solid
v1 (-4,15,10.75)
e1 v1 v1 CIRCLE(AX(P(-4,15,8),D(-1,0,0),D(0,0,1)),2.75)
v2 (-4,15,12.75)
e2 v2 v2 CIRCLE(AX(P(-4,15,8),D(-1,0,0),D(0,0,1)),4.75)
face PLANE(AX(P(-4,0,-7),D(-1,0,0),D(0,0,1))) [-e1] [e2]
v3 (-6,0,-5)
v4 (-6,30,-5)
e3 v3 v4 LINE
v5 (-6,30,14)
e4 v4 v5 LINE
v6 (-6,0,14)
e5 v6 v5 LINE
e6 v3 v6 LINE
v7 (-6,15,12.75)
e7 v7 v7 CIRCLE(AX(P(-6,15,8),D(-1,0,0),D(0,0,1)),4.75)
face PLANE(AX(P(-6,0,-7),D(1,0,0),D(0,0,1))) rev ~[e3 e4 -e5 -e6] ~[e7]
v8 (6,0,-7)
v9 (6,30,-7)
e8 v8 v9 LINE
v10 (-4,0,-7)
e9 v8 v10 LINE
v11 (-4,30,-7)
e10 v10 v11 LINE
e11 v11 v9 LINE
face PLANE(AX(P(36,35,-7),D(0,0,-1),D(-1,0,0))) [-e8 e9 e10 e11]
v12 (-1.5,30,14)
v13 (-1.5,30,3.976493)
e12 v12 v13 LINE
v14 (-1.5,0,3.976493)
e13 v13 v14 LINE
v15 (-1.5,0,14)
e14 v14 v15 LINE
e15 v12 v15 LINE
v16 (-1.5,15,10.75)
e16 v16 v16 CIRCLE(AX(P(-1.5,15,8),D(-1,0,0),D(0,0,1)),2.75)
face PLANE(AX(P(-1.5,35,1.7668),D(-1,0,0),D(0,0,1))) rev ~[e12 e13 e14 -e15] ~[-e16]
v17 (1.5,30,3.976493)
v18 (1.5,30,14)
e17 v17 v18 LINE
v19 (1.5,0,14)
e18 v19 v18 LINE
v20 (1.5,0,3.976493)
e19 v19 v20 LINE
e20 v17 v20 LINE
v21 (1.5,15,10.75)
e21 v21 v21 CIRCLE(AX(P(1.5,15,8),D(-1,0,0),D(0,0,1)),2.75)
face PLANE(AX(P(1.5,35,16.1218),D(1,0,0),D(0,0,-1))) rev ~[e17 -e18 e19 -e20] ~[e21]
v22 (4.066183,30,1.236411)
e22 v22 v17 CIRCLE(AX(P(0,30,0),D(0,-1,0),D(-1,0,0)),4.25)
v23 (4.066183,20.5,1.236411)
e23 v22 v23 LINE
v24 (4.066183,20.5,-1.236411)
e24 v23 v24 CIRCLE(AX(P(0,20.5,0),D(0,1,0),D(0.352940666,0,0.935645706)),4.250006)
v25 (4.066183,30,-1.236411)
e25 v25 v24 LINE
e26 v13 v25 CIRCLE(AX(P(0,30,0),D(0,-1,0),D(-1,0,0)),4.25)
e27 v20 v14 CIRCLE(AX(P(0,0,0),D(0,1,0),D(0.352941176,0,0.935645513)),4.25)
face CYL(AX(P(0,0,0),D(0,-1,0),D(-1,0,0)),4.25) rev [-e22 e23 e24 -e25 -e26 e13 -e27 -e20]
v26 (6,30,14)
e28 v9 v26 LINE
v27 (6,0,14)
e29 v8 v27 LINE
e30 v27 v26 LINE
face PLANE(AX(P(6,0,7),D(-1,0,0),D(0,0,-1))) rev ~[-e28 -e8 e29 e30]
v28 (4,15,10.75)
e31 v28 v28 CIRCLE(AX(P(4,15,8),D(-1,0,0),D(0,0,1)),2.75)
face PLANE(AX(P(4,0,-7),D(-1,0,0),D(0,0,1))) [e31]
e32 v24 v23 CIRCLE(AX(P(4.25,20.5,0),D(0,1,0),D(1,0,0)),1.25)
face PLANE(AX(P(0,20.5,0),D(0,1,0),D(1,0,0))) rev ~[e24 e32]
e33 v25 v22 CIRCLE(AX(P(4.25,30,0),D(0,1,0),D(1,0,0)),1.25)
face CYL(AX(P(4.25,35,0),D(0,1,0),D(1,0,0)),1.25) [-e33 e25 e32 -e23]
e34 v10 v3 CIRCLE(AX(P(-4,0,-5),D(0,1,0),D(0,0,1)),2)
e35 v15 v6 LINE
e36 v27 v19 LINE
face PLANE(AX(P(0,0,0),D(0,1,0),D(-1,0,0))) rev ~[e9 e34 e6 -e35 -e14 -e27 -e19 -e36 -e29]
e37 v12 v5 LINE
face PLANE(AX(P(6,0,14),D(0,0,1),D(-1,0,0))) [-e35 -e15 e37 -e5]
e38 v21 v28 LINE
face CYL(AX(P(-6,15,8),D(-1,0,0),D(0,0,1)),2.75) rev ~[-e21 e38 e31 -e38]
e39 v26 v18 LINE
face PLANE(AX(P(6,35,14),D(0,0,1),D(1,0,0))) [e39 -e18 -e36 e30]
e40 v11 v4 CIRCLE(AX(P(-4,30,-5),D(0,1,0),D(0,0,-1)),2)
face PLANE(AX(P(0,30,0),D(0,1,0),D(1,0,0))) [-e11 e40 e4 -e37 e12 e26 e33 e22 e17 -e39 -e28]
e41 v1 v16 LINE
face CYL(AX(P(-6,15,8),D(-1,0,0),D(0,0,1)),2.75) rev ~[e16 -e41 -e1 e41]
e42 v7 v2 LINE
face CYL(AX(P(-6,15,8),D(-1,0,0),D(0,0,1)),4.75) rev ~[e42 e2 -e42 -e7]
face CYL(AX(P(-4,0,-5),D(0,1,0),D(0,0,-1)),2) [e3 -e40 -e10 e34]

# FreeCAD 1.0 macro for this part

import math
import FreeCAD as App
import Part
import Sketcher
Q = App.Units.Quantity


def edges_at(feature, points):
    """Names of the edges that pass closest to the given points."""
    edges = feature.Shape.Edges
    near = lambda p: min(range(len(edges)), key=lambda i: edges[i].distToShape(Part.Vertex(*p))[0])
    return sorted({f"Edge{near(p) + 1}" for p in points})

doc = App.newDocument("Part")
params = doc.addObject("Spreadsheet::Sheet", "Params")
for row, (alias, value) in enumerate([
    ("sketch1_diameter", "8.5 mm"),
    ("sketch1_width", "12 mm"),
    ("pad1_length", "35 mm"),
    ("sketch3_diameter", "5.5 mm"),
    ("pocket2_length", "10 mm"),
    ("sketch4_radius", "1.25 mm"),
    ("sketch4_radius2", "4.25 mm"),
    ("pad2_length", "14.5 mm"),
    ("sketch5_diameter", "5.5 mm"),
    ("sketch5_width", "30 mm"),
    ("pad3_length", "5 mm"),
    ("sketch6_diameter", "9.5 mm"),
    ("sketch6_diameter2", "5.5 mm"),
    ("pocket3_length", "2 mm"),
    ("sketch7_diameter", "9.5 mm"),
    ("sketch7_diameter2", "5.5 mm"),
    ("pocket4_length", "2 mm"),
    ("fillet_radius", "2 mm"),
    ("pocket5_length", "5 mm"),
], start=1):
    params.set(f"A{row}", alias)
    params.set(f"B{row}", "=" + value)
    params.setAlias(f"B{row}", alias)

body = doc.addObject("PartDesign::Body", "Body")

# Sketch on XZ plane
sketch1 = body.newObject("Sketcher::SketchObject", "Sketch")
sketch1.AttachmentSupport = (doc.getObject("XZ_Plane"), [""])
sketch1.MapMode = "FlatFace"
sketch1.addGeometry([
    Part.LineSegment(App.Vector(-6, -7, 0), App.Vector(-6, 14, 0)),  # 0
    Part.LineSegment(App.Vector(-6, 14, 0), App.Vector(6, 14, 0)),  # 1
    Part.LineSegment(App.Vector(6, 14, 0), App.Vector(6, -7, 0)),  # 2
    Part.LineSegment(App.Vector(6, -7, 0), App.Vector(-6, -7, 0)),  # 3
    Part.Circle(App.Vector(0, 0, 0), App.Vector(0, 0, 1), 4.25),  # 4
], False)
sketch1.addConstraint([
    Sketcher.Constraint("Coincident", 0, 2, 1, 1),
    Sketcher.Constraint("Coincident", 1, 2, 2, 1),
    Sketcher.Constraint("Coincident", 2, 2, 3, 1),
    Sketcher.Constraint("Coincident", 3, 2, 0, 1),
    Sketcher.Constraint("Vertical", 0),
    Sketcher.Constraint("Horizontal", 1),
    Sketcher.Constraint("Vertical", 2),
    Sketcher.Constraint("Horizontal", 3),
    Sketcher.Constraint("Coincident", 4, 3, -1, 1),
    Sketcher.Constraint("Diameter", 4, Q("8.5 mm")),
    Sketcher.Constraint("DistanceX", 1, 1, 1, 2, Q("12 mm")),
    Sketcher.Constraint("DistanceX", 0, 2, -1, 1, Q("6 mm")),
    Sketcher.Constraint("DistanceY", -1, 1, 0, 2, Q("14 mm")),
    Sketcher.Constraint("DistanceY", 2, 2, -1, 1, Q("7 mm")),
])
sketch1.setExpression("Constraints[9]", "Params.sketch1_diameter")
sketch1.setExpression("Constraints[10]", "Params.sketch1_width")
pad1 = body.newObject("PartDesign::Pad", "Pad")
pad1.Profile = sketch1
pad1.setExpression("Length", "Params.pad1_length")
pad1.Reversed = True

# Sketch on XZ plane
sketch2 = body.newObject("Sketcher::SketchObject", "Sketch001")
sketch2.AttachmentSupport = (doc.getObject("XZ_Plane"), [""])
sketch2.MapMode = "FlatFace"
sketch2.AttachmentOffset = App.Placement(App.Vector(0, 0, -35), App.Rotation())
sketch2.addGeometry([
    Part.LineSegment(App.Vector(-1.5, 1.7668, 0), App.Vector(-1.5, 16.1218, 0)),
    Part.LineSegment(App.Vector(-1.5, 16.1218, 0), App.Vector(1.5, 16.1218, 0)),
    Part.LineSegment(App.Vector(1.5, 16.1218, 0), App.Vector(1.5, 1.7668, 0)),
    Part.LineSegment(App.Vector(1.5, 1.7668, 0), App.Vector(-1.5, 1.7668, 0)),
], False)
sketch2.addConstraint([
    Sketcher.Constraint("Coincident", 0, 2, 1, 1),
    Sketcher.Constraint("Coincident", 1, 2, 2, 1),
    Sketcher.Constraint("Coincident", 2, 2, 3, 1),
    Sketcher.Constraint("Coincident", 3, 2, 0, 1),
    Sketcher.Constraint("Vertical", 0),
    Sketcher.Constraint("Horizontal", 1),
    Sketcher.Constraint("Vertical", 2),
    Sketcher.Constraint("Horizontal", 3),
    Sketcher.Constraint("DistanceX", 0, 2, -1, 1, Q("1.5 mm")),
    Sketcher.Constraint("DistanceX", -1, 1, 1, 2, Q("1.5 mm")),
    Sketcher.Constraint("DistanceY", 0, 1, 0, 2, Q("14.355 mm")),
    Sketcher.Constraint("DistanceY", -1, 1, 0, 2, Q("16.1218 mm")),
])
pocket1 = body.newObject("PartDesign::Pocket", "Pocket")
pocket1.Profile = sketch2
pocket1.Type = "ThroughAll"
pocket1.Reversed = True

# Sketch on YZ plane
sketch3 = body.newObject("Sketcher::SketchObject", "Sketch002")
sketch3.AttachmentSupport = (doc.getObject("YZ_Plane"), [""])
sketch3.MapMode = "FlatFace"
sketch3.AttachmentOffset = App.Placement(App.Vector(0, 0, -6), App.Rotation())
sketch3.addGeometry(Part.Circle(App.Vector(15, 8, 0), App.Vector(0, 0, 1), 2.75), False)
sketch3.addConstraint([
    Sketcher.Constraint("Diameter", 0, Q("5.5 mm")),
    Sketcher.Constraint("DistanceX", -1, 1, 0, 3, Q("15 mm")),
    Sketcher.Constraint("DistanceY", -1, 1, 0, 3, Q("8 mm")),
])
sketch3.setExpression("Constraints[0]", "Params.sketch3_diameter")
pocket2 = body.newObject("PartDesign::Pocket", "Pocket001")
pocket2.Profile = sketch3
pocket2.setExpression("Length", "Params.pocket2_length")
pocket2.Reversed = True

# Sketch on XZ plane
sketch4 = body.newObject("Sketcher::SketchObject", "Sketch003")
sketch4.AttachmentSupport = (doc.getObject("XZ_Plane"), [""])
sketch4.MapMode = "FlatFace"
sketch4.AttachmentOffset = App.Placement(App.Vector(0, 0, -35), App.Rotation())
sketch4.addGeometry([
    Part.ArcOfCircle(Part.Circle(App.Vector(4.25, 0, 0), App.Vector(0, 0, 1), 1.25), math.radians(98.456234), math.radians(261.543766)),
    Part.ArcOfCircle(Part.Circle(App.Vector(0, 0, 0), App.Vector(0, 0, 1), 4.250006), math.radians(-16.913026), math.radians(16.913026)),
], False)
sketch4.addConstraint([
    Sketcher.Constraint("Coincident", 0, 1, 1, 2),
    Sketcher.Constraint("Coincident", 1, 1, 0, 2),
    Sketcher.Constraint("Coincident", 1, 3, -1, 1),
    Sketcher.Constraint("PointOnObject", 0, 3, -1),
    Sketcher.Constraint("Radius", 0, Q("1.25 mm")),
    Sketcher.Constraint("Radius", 1, Q("4.25 mm")),
    Sketcher.Constraint("DistanceX", -1, 1, 0, 3, Q("4.25 mm")),
])
sketch4.setExpression("Constraints[4]", "Params.sketch4_radius")
sketch4.setExpression("Constraints[5]", "Params.sketch4_radius2")
pad2 = body.newObject("PartDesign::Pad", "Pad001")
pad2.Profile = sketch4
pad2.setExpression("Length", "Params.pad2_length")

# Sketch on XZ plane
sketch5 = body.newObject("Sketcher::SketchObject", "Sketch004")
sketch5.AttachmentSupport = (doc.getObject("XZ_Plane"), [""])
sketch5.MapMode = "FlatFace"
sketch5.AttachmentOffset = App.Placement(App.Vector(0, 0, -35), App.Rotation())
sketch5.addGeometry([
    Part.LineSegment(App.Vector(6, -7, 0), App.Vector(6, 14, 0)),  # 0
    Part.LineSegment(App.Vector(6, 14, 0), App.Vector(36, 14, 0)),  # 1
    Part.LineSegment(App.Vector(36, 14, 0), App.Vector(36, -7, 0)),  # 2
    Part.LineSegment(App.Vector(36, -7, 0), App.Vector(6, -7, 0)),  # 3
    Part.Circle(App.Vector(21, 3.5, 0), App.Vector(0, 0, 1), 2.75),  # 4
], False)
sketch5.addConstraint([
    Sketcher.Constraint("Coincident", 0, 2, 1, 1),
    Sketcher.Constraint("Coincident", 1, 2, 2, 1),
    Sketcher.Constraint("Coincident", 2, 2, 3, 1),
    Sketcher.Constraint("Coincident", 3, 2, 0, 1),
    Sketcher.Constraint("Vertical", 0),
    Sketcher.Constraint("Horizontal", 1),
    Sketcher.Constraint("Vertical", 2),
    Sketcher.Constraint("Horizontal", 3),
    Sketcher.Constraint("Diameter", 4, Q("5.5 mm")),
    Sketcher.Constraint("DistanceX", 1, 1, 1, 2, Q("30 mm")),
    Sketcher.Constraint("DistanceX", 0, 2, 4, 3, Q("15 mm")),
    Sketcher.Constraint("DistanceY", 4, 3, 0, 2, Q("10.5 mm")),
    Sketcher.Constraint("DistanceY", 2, 2, 4, 3, Q("10.5 mm")),
    Sketcher.Constraint("DistanceX", -1, 1, 4, 3, Q("21 mm")),
    Sketcher.Constraint("DistanceY", -1, 1, 0, 2, Q("14 mm")),
])
sketch5.setExpression("Constraints[8]", "Params.sketch5_diameter")
sketch5.setExpression("Constraints[9]", "Params.sketch5_width")
pad3 = body.newObject("PartDesign::Pad", "Pad002")
pad3.Profile = sketch5
pad3.setExpression("Length", "Params.pad3_length")

# Sketch on XZ plane
sketch6 = body.newObject("Sketcher::SketchObject", "Sketch005")
sketch6.AttachmentSupport = (doc.getObject("XZ_Plane"), [""])
sketch6.MapMode = "FlatFace"
sketch6.AttachmentOffset = App.Placement(App.Vector(0, 0, -35), App.Rotation())
sketch6.addGeometry([
    Part.Circle(App.Vector(21, 3.5, 0), App.Vector(0, 0, 1), 4.75),
    Part.Circle(App.Vector(21, 3.5, 0), App.Vector(0, 0, 1), 2.75),
], False)
sketch6.addConstraint([
    Sketcher.Constraint("Coincident", 1, 3, 0, 3),
    Sketcher.Constraint("Diameter", 0, Q("9.5 mm")),
    Sketcher.Constraint("Diameter", 1, Q("5.5 mm")),
    Sketcher.Constraint("DistanceX", -1, 1, 0, 3, Q("21 mm")),
    Sketcher.Constraint("DistanceY", -1, 1, 0, 3, Q("3.5 mm")),
])
sketch6.setExpression("Constraints[1]", "Params.sketch6_diameter")
sketch6.setExpression("Constraints[2]", "Params.sketch6_diameter2")
pocket3 = body.newObject("PartDesign::Pocket", "Pocket002")
pocket3.Profile = sketch6
pocket3.setExpression("Length", "Params.pocket3_length")
pocket3.Reversed = True

# Sketch on YZ plane
sketch7 = body.newObject("Sketcher::SketchObject", "Sketch006")
sketch7.AttachmentSupport = (doc.getObject("YZ_Plane"), [""])
sketch7.MapMode = "FlatFace"
sketch7.AttachmentOffset = App.Placement(App.Vector(0, 0, -6), App.Rotation())
sketch7.addGeometry([
    Part.Circle(App.Vector(15, 8, 0), App.Vector(0, 0, 1), 4.75),
    Part.Circle(App.Vector(15, 8, 0), App.Vector(0, 0, 1), 2.75),
], False)
sketch7.addConstraint([
    Sketcher.Constraint("Coincident", 1, 3, 0, 3),
    Sketcher.Constraint("Diameter", 0, Q("9.5 mm")),
    Sketcher.Constraint("Diameter", 1, Q("5.5 mm")),
    Sketcher.Constraint("DistanceX", -1, 1, 0, 3, Q("15 mm")),
    Sketcher.Constraint("DistanceY", -1, 1, 0, 3, Q("8 mm")),
])
sketch7.setExpression("Constraints[1]", "Params.sketch7_diameter")
sketch7.setExpression("Constraints[2]", "Params.sketch7_diameter2")
pocket4 = body.newObject("PartDesign::Pocket", "Pocket003")
pocket4.Profile = sketch7
pocket4.setExpression("Length", "Params.pocket4_length")
pocket4.Reversed = True
doc.recompute()

fillet = body.newObject("PartDesign::Fillet", "Fillet")
fillet.Base = (pocket4, edges_at(pocket4, [(-6, 17.5, -7), (36, 32.5, -7), (36, 32.5, 14)]))
fillet.setExpression("Radius", "Params.fillet_radius")

# Sketch on XZ plane
sketch8 = body.newObject("Sketcher::SketchObject", "Sketch007")
sketch8.AttachmentSupport = (doc.getObject("XZ_Plane"), [""])
sketch8.MapMode = "FlatFace"
sketch8.AttachmentOffset = App.Placement(App.Vector(0, 0, -35), App.Rotation())
sketch8.addGeometry([
    Part.LineSegment(App.Vector(-21.5057, -16.5719, 0), App.Vector(-21.5057, 29.1514, 0)),
    Part.LineSegment(App.Vector(-21.5057, 29.1514, 0), App.Vector(41.8439, 29.1514, 0)),
    Part.LineSegment(App.Vector(41.8439, 29.1514, 0), App.Vector(41.8439, -16.5719, 0)),
    Part.LineSegment(App.Vector(41.8439, -16.5719, 0), App.Vector(-21.5057, -16.5719, 0)),
], False)
sketch8.addConstraint([
    Sketcher.Constraint("Coincident", 0, 2, 1, 1),
    Sketcher.Constraint("Coincident", 1, 2, 2, 1),
    Sketcher.Constraint("Coincident", 2, 2, 3, 1),
    Sketcher.Constraint("Coincident", 3, 2, 0, 1),
    Sketcher.Constraint("Vertical", 0),
    Sketcher.Constraint("Horizontal", 1),
    Sketcher.Constraint("Vertical", 2),
    Sketcher.Constraint("Horizontal", 3),
    Sketcher.Constraint("DistanceX", 1, 1, 1, 2, Q("63.3496 mm")),
    Sketcher.Constraint("DistanceY", 0, 1, 0, 2, Q("45.7233 mm")),
    Sketcher.Constraint("DistanceX", -1, 1, 1, 2, Q("41.844 mm")),
    Sketcher.Constraint("DistanceY", 2, 2, -1, 1, Q("16.572 mm")),
])
pocket5 = body.newObject("PartDesign::Pocket", "Pocket004")
pocket5.Profile = sketch8
pocket5.setExpression("Length", "Params.pocket5_length")
pocket5.Reversed = True

doc.recompute()
